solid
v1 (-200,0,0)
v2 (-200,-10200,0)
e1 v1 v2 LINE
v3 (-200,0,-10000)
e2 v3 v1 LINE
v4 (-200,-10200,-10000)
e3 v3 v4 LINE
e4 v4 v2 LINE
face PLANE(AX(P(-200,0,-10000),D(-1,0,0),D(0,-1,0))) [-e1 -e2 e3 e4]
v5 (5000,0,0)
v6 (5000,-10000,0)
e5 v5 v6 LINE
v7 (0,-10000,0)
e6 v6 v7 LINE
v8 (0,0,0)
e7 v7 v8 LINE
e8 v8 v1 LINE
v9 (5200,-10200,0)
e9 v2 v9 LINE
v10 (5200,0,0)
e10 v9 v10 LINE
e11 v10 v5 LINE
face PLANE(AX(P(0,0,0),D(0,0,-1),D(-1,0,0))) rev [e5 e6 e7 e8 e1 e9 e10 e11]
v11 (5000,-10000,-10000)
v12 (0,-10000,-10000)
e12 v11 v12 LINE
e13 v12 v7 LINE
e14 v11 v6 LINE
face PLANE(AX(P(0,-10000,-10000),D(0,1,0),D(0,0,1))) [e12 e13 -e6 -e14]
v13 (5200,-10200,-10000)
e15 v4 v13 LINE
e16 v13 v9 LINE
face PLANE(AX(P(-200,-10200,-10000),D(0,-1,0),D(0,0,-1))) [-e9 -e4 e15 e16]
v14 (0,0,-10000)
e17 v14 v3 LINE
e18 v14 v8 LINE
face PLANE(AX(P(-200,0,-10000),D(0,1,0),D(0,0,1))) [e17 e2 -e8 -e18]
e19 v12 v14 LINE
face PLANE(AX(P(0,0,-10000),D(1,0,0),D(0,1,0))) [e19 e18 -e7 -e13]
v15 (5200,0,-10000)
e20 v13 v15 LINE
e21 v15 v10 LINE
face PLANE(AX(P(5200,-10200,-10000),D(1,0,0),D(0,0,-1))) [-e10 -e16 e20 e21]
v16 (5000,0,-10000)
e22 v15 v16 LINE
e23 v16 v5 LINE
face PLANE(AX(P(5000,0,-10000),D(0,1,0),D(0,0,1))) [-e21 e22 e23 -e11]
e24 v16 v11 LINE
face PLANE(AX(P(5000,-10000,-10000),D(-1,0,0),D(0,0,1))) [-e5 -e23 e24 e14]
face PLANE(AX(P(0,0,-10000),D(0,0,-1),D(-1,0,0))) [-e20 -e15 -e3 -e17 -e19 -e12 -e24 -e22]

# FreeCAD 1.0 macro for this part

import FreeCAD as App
import Part
import Sketcher
from FreeCAD import Vector
Q = App.Units.Quantity

doc = App.newDocument("Part")
body = doc.addObject("PartDesign::Body", "Body")

# Sketch on XY plane
sketch1 = doc.addObject("Sketcher::SketchObject", "Sketch")
body.addObject(sketch1)
sketch1.AttachmentSupport = (doc.XY_Plane, [""])
sketch1.MapMode = "FlatFace"
sketch1.addGeometry([
    Part.LineSegment(Vector(0, -10000, 0), Vector(0, 0, 0)),  # 0
    Part.LineSegment(Vector(0, 0, 0), Vector(-200, 0, 0)),  # 1
    Part.LineSegment(Vector(-200, 0, 0), Vector(-200, -10200, 0)),  # 2
    Part.LineSegment(Vector(-200, -10200, 0), Vector(5200, -10200, 0)),  # 3
    Part.LineSegment(Vector(5200, -10200, 0), Vector(5200, 0, 0)),  # 4
    Part.LineSegment(Vector(5200, 0, 0), Vector(5000, 0, 0)),  # 5
    Part.LineSegment(Vector(5000, 0, 0), Vector(5000, -10000, 0)),  # 6
    Part.LineSegment(Vector(5000, -10000, 0), Vector(0, -10000, 0)),  # 7
], False)
sketch1.addConstraint([
    Sketcher.Constraint("Coincident", 0, 2, 1, 1),
    Sketcher.Constraint("Coincident", 1, 2, 2, 1),
    Sketcher.Constraint("Coincident", 2, 2, 3, 1),
    Sketcher.Constraint("Coincident", 3, 2, 4, 1),
    Sketcher.Constraint("Coincident", 4, 2, 5, 1),
    Sketcher.Constraint("Coincident", 5, 2, 6, 1),
    Sketcher.Constraint("Coincident", 6, 2, 7, 1),
    Sketcher.Constraint("Coincident", 7, 2, 0, 1),
    Sketcher.Constraint("Vertical", 0),
    Sketcher.Constraint("Horizontal", 1),
    Sketcher.Constraint("Vertical", 2),
    Sketcher.Constraint("Horizontal", 3),
    Sketcher.Constraint("Vertical", 4),
    Sketcher.Constraint("Horizontal", 5),
    Sketcher.Constraint("Vertical", 6),
    Sketcher.Constraint("Horizontal", 7),
    Sketcher.Constraint("Coincident", 0, 2, -1, 1),
    Sketcher.Constraint("PointOnObject", 4, 2, -1),
    Sketcher.Constraint("Equal", 1, 5),
    Sketcher.Constraint("DistanceX", 1, 2, 1, 1, Q("200 mm")),
    Sketcher.Constraint("DistanceX", 3, 1, 3, 2, Q("5400 mm")),
    Sketcher.Constraint("DistanceY", 0, 1, 0, 2, Q("10000 mm")),
    Sketcher.Constraint("DistanceY", 2, 2, 2, 1, Q("10200 mm")),
])
pad1 = doc.addObject("PartDesign::Pad", "Pad")
body.addObject(pad1)
pad1.Profile = sketch1
pad1.Length = 10000
pad1.Reversed = True

doc.recompute()
